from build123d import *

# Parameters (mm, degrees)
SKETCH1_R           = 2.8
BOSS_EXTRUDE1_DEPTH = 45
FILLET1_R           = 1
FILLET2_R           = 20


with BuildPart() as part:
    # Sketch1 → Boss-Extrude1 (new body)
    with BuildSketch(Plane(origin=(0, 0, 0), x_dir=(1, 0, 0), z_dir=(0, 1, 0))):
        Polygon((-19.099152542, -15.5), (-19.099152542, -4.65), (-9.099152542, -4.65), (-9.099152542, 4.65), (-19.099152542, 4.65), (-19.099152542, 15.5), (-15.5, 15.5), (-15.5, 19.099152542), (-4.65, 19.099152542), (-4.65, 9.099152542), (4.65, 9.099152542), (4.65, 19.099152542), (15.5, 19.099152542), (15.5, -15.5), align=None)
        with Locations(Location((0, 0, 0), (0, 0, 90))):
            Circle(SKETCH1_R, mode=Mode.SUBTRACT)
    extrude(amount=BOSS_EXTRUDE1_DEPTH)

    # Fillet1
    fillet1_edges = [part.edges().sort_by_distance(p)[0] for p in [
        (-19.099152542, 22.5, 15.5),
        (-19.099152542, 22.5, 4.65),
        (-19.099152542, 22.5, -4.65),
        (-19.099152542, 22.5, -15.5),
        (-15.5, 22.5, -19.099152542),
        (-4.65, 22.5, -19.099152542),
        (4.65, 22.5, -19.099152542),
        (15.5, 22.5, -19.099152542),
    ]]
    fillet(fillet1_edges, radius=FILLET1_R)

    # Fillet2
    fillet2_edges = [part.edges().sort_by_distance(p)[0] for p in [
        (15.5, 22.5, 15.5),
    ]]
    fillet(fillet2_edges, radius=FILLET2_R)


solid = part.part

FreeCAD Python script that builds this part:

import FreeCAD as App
import Part
import Sketcher

V = App.Vector


def edges_at(feature, points):
    """Names of the edges that pass closest to the given points."""
    edges = feature.Shape.Edges
    near = lambda p: min(range(len(edges)), key=lambda i: edges[i].distToShape(Part.Vertex(*p))[0])
    return sorted({f"Edge{near(p) + 1}" for p in points})


def add_polygon(sketch, points):
    """Adds a closed chain of lines whose ends are joined by coincident constraints."""
    first, n = sketch.GeometryCount, len(points)
    for a, b in zip(points, points[1:] + points[:1]):
        sketch.addGeometry(Part.LineSegment(App.Vector(*a, 0), App.Vector(*b, 0)), False)
    for i in range(n):
        sketch.addConstraint(Sketcher.Constraint("Coincident", first + i, 2, first + (i + 1) % n, 1))

doc = App.newDocument("Part")
body = doc.addObject("PartDesign::Body", "Body")

sketch1 = body.newObject("Sketcher::SketchObject", "Sketch")
sketch1.AttachmentSupport = (doc.getObject("XZ_Plane"), [""])
sketch1.MapMode = "FlatFace"
add_polygon(sketch1, [(-19.099153, 4.65), (-19.099153, 15.5), (15.5, 15.5), (15.5, -19.099153), (4.65, -19.099153), (4.65, -9.099153), (-4.65, -9.099153), (-4.65, -19.099153), (-15.5, -19.099153), (-15.5, -15.5), (-19.099153, -15.5), (-19.099153, -4.65), (-9.099153, -4.65), (-9.099153, 4.65)])
sketch1.addGeometry(Part.Circle(V(0, 0, 0), V(0, 0, 1), 2.8), False)
sketch1.addConstraint(Sketcher.Constraint("Vertical", 0))
sketch1.addConstraint(Sketcher.Constraint("Horizontal", 1))
sketch1.addConstraint(Sketcher.Constraint("Vertical", 2))
sketch1.addConstraint(Sketcher.Constraint("Horizontal", 3))
sketch1.addConstraint(Sketcher.Constraint("Vertical", 4))
sketch1.addConstraint(Sketcher.Constraint("Horizontal", 5))
sketch1.addConstraint(Sketcher.Constraint("Vertical", 6))
sketch1.addConstraint(Sketcher.Constraint("Horizontal", 7))
sketch1.addConstraint(Sketcher.Constraint("Vertical", 8))
sketch1.addConstraint(Sketcher.Constraint("Horizontal", 9))
sketch1.addConstraint(Sketcher.Constraint("Vertical", 10))
sketch1.addConstraint(Sketcher.Constraint("Horizontal", 11))
sketch1.addConstraint(Sketcher.Constraint("Vertical", 12))
sketch1.addConstraint(Sketcher.Constraint("Horizontal", 13))
sketch1.addConstraint(Sketcher.Constraint("Coincident", 14, 3, -1, 1))
sketch1.addConstraint(Sketcher.Constraint("Symmetric", 1, 2, 8, 2, -1, 1))
sketch1.addConstraint(Sketcher.Constraint("Symmetric", 3, 2, 6, 2, -2))
sketch1.addConstraint(Sketcher.Constraint("Symmetric", 10, 2, 13, 2, -1))
sketch1.addConstraint(Sketcher.Constraint("Equal", 7, 0))
sketch1.addConstraint(Sketcher.Constraint("Equal", 1, 2))
sketch1.addConstraint(Sketcher.Constraint("Equal", 13, 4))
sketch1.addConstraint(Sketcher.Constraint("Equal", 9, 8))
sketch1.addConstraint(Sketcher.Constraint("Diameter", 14, 5.6))
sketch1.addConstraint(Sketcher.Constraint("DistanceX", 11, 1, 11, 2, 10.0))
sketch1.addConstraint(Sketcher.Constraint("DistanceX", 5, 2, 5, 1, 9.3))
sketch1.addConstraint(Sketcher.Constraint("DistanceX", 3, 2, 3, 1, 10.85))
sketch1.addConstraint(Sketcher.Constraint("DistanceX", 1, 1, 1, 2, 34.599153))
pad1 = body.newObject("PartDesign::Pad", "Pad")
pad1.Profile = sketch1
pad1.Length = 45
pad1.Reversed = True
doc.recompute()

fillet = body.newObject("PartDesign::Fillet", "Fillet")
fillet.Base = (pad1, edges_at(pad1, [
    (-19.099, 22.5, 15.5),
    (-19.099, 22.5, 4.65),
    (-19.099, 22.5, -4.65),
    (-19.099, 22.5, -15.5),
    (-15.5, 22.5, -19.099),
    (-4.65, 22.5, -19.099),
    (4.65, 22.5, -19.099),
    (15.5, 22.5, -19.099),
]))
fillet.Radius = 1
doc.recompute()

fillet2 = body.newObject("PartDesign::Fillet", "Fillet001")
fillet2.Base = (fillet, edges_at(fillet, [(15.5, 22.5, 15.5)]))
fillet2.Radius = 20

doc.recompute()
